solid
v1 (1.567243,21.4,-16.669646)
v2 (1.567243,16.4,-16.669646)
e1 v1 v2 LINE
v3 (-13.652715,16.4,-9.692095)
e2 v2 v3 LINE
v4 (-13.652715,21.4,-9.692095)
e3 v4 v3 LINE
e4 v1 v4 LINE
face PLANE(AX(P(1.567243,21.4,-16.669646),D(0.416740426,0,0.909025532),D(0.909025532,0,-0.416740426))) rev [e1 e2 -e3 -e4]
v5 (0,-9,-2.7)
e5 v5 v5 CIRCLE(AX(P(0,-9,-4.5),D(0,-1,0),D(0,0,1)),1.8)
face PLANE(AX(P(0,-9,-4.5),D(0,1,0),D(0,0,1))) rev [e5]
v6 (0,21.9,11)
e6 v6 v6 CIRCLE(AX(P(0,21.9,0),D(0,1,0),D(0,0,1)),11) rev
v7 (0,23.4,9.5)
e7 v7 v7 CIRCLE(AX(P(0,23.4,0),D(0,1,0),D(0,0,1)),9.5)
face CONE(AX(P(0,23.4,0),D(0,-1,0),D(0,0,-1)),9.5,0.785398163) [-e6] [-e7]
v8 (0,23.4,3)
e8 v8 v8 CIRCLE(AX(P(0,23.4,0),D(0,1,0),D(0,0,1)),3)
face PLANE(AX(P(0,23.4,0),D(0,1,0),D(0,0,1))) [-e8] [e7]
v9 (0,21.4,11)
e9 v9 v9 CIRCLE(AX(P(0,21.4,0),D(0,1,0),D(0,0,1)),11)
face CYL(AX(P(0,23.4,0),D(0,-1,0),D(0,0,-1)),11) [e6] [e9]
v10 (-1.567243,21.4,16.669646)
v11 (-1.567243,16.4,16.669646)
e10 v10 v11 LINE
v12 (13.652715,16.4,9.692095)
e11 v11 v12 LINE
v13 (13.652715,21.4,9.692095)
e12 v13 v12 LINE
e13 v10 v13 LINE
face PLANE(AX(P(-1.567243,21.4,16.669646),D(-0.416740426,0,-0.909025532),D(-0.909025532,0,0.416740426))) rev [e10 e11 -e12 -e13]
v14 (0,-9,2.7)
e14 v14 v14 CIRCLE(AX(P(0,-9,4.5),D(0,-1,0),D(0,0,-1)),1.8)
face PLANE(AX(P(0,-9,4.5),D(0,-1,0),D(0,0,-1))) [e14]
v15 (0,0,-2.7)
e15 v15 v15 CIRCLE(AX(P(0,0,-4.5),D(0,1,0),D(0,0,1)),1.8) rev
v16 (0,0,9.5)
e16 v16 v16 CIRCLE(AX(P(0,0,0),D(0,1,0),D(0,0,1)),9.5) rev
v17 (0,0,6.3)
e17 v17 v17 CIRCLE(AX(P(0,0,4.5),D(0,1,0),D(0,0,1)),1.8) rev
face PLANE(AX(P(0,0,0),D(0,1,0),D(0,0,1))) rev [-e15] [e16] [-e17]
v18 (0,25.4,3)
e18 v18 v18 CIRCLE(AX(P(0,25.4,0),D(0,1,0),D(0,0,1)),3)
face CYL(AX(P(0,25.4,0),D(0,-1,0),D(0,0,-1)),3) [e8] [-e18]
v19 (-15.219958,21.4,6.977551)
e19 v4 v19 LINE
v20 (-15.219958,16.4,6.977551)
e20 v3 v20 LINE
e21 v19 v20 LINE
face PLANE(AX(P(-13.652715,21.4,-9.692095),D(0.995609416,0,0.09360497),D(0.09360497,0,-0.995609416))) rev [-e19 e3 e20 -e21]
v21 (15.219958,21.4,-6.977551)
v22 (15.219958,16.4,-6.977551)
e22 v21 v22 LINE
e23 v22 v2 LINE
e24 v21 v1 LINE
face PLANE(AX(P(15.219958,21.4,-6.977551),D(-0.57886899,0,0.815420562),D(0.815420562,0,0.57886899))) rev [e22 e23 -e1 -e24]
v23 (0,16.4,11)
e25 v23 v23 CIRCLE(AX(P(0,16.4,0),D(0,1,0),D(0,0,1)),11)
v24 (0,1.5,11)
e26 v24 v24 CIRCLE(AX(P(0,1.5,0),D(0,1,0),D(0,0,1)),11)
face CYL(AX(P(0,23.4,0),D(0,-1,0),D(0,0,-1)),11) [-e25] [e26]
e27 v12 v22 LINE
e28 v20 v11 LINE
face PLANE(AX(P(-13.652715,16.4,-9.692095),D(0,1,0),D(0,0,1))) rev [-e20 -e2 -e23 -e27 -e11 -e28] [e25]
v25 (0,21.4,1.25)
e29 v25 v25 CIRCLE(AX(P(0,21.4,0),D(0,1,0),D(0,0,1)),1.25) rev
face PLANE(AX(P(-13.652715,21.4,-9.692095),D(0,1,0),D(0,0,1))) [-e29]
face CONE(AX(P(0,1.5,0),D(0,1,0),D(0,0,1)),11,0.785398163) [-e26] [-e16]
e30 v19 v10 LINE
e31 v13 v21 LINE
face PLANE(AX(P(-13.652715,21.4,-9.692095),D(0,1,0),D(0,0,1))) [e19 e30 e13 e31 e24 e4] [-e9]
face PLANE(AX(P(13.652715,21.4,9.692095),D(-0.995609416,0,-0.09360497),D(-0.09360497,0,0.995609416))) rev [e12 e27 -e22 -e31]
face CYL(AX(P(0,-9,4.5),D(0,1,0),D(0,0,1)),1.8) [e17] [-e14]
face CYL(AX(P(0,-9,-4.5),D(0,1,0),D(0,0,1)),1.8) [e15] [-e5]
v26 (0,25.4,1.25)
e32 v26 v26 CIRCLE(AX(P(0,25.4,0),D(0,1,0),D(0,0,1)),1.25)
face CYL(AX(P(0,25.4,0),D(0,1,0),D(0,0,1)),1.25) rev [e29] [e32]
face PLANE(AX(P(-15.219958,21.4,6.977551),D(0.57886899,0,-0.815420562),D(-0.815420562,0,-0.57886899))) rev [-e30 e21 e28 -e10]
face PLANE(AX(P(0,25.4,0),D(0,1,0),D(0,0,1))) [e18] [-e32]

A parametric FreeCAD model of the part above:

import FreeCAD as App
import Part
import Sketcher

V = App.Vector
Q = App.Units.Quantity


def edges_at(feature, points):
    """Names of the edges that pass closest to the given points."""
    edges = feature.Shape.Edges
    near = lambda p: min(range(len(edges)), key=lambda i: edges[i].distToShape(Part.Vertex(*p))[0])
    return sorted({f"Edge{near(p) + 1}" for p in points})


def add_polygon(sketch, points):
    """Adds a closed chain of lines whose ends are joined by coincident constraints."""
    first, n = sketch.GeometryCount, len(points)
    for a, b in zip(points, points[1:] + points[:1]):
        sketch.addGeometry(Part.LineSegment(App.Vector(*a, 0), App.Vector(*b, 0)), False)
    for i in range(n):
        sketch.addConstraint(Sketcher.Constraint("Coincident", first + i, 2, first + (i + 1) % n, 1))

doc = App.newDocument("Part")
params = doc.addObject("Spreadsheet::Sheet", "Params")
for row, (alias, value) in enumerate([
    ("sketch1_diameter", "22 mm"),
    ("pad1_length", "23.4 mm"),
    ("sketch2_diameter", "6 mm"),
    ("pad2_length", "2 mm"),
    ("sketch3_diameter", "2.5 mm"),
    ("hole_diameter", "2.5 mm"),
    ("hole_depth", "7.5 mm"),
    ("chamfer_size", "1.5 mm"),
    ("chamfer2_size", "1.5 mm"),
    ("sketch4_diameter", "3.6 mm"),
    ("pad3_length", "9 mm"),
    ("pad4_length", "5 mm"),
], start=1):
    params.set(f"A{row}", alias)
    params.set(f"B{row}", "=" + value)
    params.setAlias(f"B{row}", alias)

body = doc.addObject("PartDesign::Body", "Body")

# Sketch on XZ plane
sketch1 = body.newObject("Sketcher::SketchObject", "Sketch")
sketch1.AttachmentSupport = (doc.getObject("XZ_Plane"), [""])
sketch1.MapMode = "FlatFace"
sketch1.addGeometry(Part.Circle(V(0, 0, 0), V(0, 0, 1), 11), False)
sketch1.addConstraint(Sketcher.Constraint("Coincident", 0, 3, -1, 1))
sketch1.addConstraint(Sketcher.Constraint("Diameter", 0, Q("22 mm")))
sketch1.setExpression("Constraints[1]", "Params.sketch1_diameter")
pad1 = body.newObject("PartDesign::Pad", "Pad")
pad1.Profile = sketch1
pad1.setExpression("Length", "Params.pad1_length")
pad1.Reversed = True

# Sketch on XZ plane
sketch2 = body.newObject("Sketcher::SketchObject", "Sketch001")
sketch2.AttachmentSupport = (doc.getObject("XZ_Plane"), [""])
sketch2.MapMode = "FlatFace"
sketch2.AttachmentOffset = App.Placement(V(0, 0, -23.4), App.Rotation())
sketch2.addGeometry(Part.Circle(V(0, 0, 0), V(0, 0, 1), 3), False)
sketch2.addConstraint(Sketcher.Constraint("Coincident", 0, 3, -1, 1))
sketch2.addConstraint(Sketcher.Constraint("Diameter", 0, Q("6 mm")))
sketch2.setExpression("Constraints[1]", "Params.sketch2_diameter")
pad2 = body.newObject("PartDesign::Pad", "Pad001")
pad2.Profile = sketch2
pad2.setExpression("Length", "Params.pad2_length")
pad2.Reversed = True

# Sketch on XZ plane
sketch3 = body.newObject("Sketcher::SketchObject", "Sketch002")
sketch3.AttachmentSupport = (doc.getObject("XZ_Plane"), [""])
sketch3.MapMode = "FlatFace"
sketch3.AttachmentOffset = App.Placement(V(0, 0, -25.4), App.Rotation())
sketch3.addGeometry(Part.Circle(V(0, 0, 0), V(0, 0, 1), 1.2), False)
sketch3.addConstraint(Sketcher.Constraint("Coincident", 0, 3, -1, 1))
sketch3.addConstraint(Sketcher.Constraint("Diameter", 0, Q("2.5 mm")))
sketch3.setExpression("Constraints[1]", "Params.sketch3_diameter")
doc.recompute()
hole = body.newObject("PartDesign::Hole", "Hole")
hole.Profile = sketch3
hole.ThreadType = "None"
hole.setExpression("Diameter", "Params.hole_diameter")
hole.DepthType = "Dimension"
hole.setExpression("Depth", "Params.hole_depth")
hole.DrillPoint = "Angled"
hole.DrillPointAngle = 118
hole.Reversed = True
doc.recompute()

chamfer = body.newObject("PartDesign::Chamfer", "Chamfer")
chamfer.Base = (hole, edges_at(hole, [(0, 23.4, -11)]))
chamfer.setExpression("Size", "Params.chamfer_size")
doc.recompute()

chamfer2 = body.newObject("PartDesign::Chamfer", "Chamfer001")
chamfer2.Base = (chamfer, edges_at(chamfer, [(0, 0, -11)]))
chamfer2.setExpression("Size", "Params.chamfer2_size")

# Sketch on XZ plane
sketch4 = body.newObject("Sketcher::SketchObject", "Sketch003")
sketch4.AttachmentSupport = (doc.getObject("XZ_Plane"), [""])
sketch4.MapMode = "FlatFace"
sketch4.addGeometry(Part.Circle(V(0, 4.5, 0), V(0, 0, 1), 1.8), False)
sketch4.addGeometry(Part.Circle(V(0, -4.5, 0), V(0, 0, 1), 1.8), False)
sketch4.addConstraint(Sketcher.Constraint("Equal", 0, 1))
sketch4.addConstraint(Sketcher.Constraint("Symmetric", 0, 3, 1, 3, -1, 1))
sketch4.addConstraint(Sketcher.Constraint("PointOnObject", 0, 3, -2))
sketch4.addConstraint(Sketcher.Constraint("Diameter", 0, Q("3.6 mm")))
sketch4.addConstraint(Sketcher.Constraint("DistanceY", 1, 3, 0, 3, Q("9 mm")))
sketch4.setExpression("Constraints[3]", "Params.sketch4_diameter")
pad3 = body.newObject("PartDesign::Pad", "Pad002")
pad3.Profile = sketch4
pad3.setExpression("Length", "Params.pad3_length")

# Sketch on XZ plane
sketch5 = body.newObject("Sketcher::SketchObject", "Sketch004")
sketch5.AttachmentSupport = (doc.getObject("XZ_Plane"), [""])
sketch5.MapMode = "FlatFace"
sketch5.AttachmentOffset = App.Placement(V(0, 0, -16.4), App.Rotation())
add_polygon(sketch5, [(-14, -10), (-15, 7), (-2, 17), (14, 10), (15, -7), (2, -17)])  # lines 0-5
sketch5.addConstraint(Sketcher.Constraint("Symmetric", 0, 2, 3, 2, -1, 1))
sketch5.addConstraint(Sketcher.Constraint("Symmetric", 1, 2, 4, 2, -1, 1))
sketch5.addConstraint(Sketcher.Constraint("Symmetric", 2, 2, 5, 2, -1, 1))
sketch5.addConstraint(Sketcher.Constraint("Equal", 0, 1))
sketch5.addConstraint(Sketcher.Constraint("Equal", 1, 2))
sketch5.addConstraint(Sketcher.Constraint("DistanceX", 1, 2, 3, 2, Q("16.787201 mm")))
sketch5.addConstraint(Sketcher.Constraint("DistanceY", 3, 2, 0, 2, Q("13.955101 mm")))
sketch5.addConstraint(Sketcher.Constraint("DistanceY", 2, 2, 1, 2, Q("6.977551 mm")))
sketch5.addConstraint(Sketcher.Constraint("DistanceY", 4, 2, 2, 2, Q("26.36174 mm")))
pad4 = body.newObject("PartDesign::Pad", "Pad003")
pad4.Profile = sketch5
pad4.setExpression("Length", "Params.pad4_length")
pad4.Reversed = True

doc.recompute()
